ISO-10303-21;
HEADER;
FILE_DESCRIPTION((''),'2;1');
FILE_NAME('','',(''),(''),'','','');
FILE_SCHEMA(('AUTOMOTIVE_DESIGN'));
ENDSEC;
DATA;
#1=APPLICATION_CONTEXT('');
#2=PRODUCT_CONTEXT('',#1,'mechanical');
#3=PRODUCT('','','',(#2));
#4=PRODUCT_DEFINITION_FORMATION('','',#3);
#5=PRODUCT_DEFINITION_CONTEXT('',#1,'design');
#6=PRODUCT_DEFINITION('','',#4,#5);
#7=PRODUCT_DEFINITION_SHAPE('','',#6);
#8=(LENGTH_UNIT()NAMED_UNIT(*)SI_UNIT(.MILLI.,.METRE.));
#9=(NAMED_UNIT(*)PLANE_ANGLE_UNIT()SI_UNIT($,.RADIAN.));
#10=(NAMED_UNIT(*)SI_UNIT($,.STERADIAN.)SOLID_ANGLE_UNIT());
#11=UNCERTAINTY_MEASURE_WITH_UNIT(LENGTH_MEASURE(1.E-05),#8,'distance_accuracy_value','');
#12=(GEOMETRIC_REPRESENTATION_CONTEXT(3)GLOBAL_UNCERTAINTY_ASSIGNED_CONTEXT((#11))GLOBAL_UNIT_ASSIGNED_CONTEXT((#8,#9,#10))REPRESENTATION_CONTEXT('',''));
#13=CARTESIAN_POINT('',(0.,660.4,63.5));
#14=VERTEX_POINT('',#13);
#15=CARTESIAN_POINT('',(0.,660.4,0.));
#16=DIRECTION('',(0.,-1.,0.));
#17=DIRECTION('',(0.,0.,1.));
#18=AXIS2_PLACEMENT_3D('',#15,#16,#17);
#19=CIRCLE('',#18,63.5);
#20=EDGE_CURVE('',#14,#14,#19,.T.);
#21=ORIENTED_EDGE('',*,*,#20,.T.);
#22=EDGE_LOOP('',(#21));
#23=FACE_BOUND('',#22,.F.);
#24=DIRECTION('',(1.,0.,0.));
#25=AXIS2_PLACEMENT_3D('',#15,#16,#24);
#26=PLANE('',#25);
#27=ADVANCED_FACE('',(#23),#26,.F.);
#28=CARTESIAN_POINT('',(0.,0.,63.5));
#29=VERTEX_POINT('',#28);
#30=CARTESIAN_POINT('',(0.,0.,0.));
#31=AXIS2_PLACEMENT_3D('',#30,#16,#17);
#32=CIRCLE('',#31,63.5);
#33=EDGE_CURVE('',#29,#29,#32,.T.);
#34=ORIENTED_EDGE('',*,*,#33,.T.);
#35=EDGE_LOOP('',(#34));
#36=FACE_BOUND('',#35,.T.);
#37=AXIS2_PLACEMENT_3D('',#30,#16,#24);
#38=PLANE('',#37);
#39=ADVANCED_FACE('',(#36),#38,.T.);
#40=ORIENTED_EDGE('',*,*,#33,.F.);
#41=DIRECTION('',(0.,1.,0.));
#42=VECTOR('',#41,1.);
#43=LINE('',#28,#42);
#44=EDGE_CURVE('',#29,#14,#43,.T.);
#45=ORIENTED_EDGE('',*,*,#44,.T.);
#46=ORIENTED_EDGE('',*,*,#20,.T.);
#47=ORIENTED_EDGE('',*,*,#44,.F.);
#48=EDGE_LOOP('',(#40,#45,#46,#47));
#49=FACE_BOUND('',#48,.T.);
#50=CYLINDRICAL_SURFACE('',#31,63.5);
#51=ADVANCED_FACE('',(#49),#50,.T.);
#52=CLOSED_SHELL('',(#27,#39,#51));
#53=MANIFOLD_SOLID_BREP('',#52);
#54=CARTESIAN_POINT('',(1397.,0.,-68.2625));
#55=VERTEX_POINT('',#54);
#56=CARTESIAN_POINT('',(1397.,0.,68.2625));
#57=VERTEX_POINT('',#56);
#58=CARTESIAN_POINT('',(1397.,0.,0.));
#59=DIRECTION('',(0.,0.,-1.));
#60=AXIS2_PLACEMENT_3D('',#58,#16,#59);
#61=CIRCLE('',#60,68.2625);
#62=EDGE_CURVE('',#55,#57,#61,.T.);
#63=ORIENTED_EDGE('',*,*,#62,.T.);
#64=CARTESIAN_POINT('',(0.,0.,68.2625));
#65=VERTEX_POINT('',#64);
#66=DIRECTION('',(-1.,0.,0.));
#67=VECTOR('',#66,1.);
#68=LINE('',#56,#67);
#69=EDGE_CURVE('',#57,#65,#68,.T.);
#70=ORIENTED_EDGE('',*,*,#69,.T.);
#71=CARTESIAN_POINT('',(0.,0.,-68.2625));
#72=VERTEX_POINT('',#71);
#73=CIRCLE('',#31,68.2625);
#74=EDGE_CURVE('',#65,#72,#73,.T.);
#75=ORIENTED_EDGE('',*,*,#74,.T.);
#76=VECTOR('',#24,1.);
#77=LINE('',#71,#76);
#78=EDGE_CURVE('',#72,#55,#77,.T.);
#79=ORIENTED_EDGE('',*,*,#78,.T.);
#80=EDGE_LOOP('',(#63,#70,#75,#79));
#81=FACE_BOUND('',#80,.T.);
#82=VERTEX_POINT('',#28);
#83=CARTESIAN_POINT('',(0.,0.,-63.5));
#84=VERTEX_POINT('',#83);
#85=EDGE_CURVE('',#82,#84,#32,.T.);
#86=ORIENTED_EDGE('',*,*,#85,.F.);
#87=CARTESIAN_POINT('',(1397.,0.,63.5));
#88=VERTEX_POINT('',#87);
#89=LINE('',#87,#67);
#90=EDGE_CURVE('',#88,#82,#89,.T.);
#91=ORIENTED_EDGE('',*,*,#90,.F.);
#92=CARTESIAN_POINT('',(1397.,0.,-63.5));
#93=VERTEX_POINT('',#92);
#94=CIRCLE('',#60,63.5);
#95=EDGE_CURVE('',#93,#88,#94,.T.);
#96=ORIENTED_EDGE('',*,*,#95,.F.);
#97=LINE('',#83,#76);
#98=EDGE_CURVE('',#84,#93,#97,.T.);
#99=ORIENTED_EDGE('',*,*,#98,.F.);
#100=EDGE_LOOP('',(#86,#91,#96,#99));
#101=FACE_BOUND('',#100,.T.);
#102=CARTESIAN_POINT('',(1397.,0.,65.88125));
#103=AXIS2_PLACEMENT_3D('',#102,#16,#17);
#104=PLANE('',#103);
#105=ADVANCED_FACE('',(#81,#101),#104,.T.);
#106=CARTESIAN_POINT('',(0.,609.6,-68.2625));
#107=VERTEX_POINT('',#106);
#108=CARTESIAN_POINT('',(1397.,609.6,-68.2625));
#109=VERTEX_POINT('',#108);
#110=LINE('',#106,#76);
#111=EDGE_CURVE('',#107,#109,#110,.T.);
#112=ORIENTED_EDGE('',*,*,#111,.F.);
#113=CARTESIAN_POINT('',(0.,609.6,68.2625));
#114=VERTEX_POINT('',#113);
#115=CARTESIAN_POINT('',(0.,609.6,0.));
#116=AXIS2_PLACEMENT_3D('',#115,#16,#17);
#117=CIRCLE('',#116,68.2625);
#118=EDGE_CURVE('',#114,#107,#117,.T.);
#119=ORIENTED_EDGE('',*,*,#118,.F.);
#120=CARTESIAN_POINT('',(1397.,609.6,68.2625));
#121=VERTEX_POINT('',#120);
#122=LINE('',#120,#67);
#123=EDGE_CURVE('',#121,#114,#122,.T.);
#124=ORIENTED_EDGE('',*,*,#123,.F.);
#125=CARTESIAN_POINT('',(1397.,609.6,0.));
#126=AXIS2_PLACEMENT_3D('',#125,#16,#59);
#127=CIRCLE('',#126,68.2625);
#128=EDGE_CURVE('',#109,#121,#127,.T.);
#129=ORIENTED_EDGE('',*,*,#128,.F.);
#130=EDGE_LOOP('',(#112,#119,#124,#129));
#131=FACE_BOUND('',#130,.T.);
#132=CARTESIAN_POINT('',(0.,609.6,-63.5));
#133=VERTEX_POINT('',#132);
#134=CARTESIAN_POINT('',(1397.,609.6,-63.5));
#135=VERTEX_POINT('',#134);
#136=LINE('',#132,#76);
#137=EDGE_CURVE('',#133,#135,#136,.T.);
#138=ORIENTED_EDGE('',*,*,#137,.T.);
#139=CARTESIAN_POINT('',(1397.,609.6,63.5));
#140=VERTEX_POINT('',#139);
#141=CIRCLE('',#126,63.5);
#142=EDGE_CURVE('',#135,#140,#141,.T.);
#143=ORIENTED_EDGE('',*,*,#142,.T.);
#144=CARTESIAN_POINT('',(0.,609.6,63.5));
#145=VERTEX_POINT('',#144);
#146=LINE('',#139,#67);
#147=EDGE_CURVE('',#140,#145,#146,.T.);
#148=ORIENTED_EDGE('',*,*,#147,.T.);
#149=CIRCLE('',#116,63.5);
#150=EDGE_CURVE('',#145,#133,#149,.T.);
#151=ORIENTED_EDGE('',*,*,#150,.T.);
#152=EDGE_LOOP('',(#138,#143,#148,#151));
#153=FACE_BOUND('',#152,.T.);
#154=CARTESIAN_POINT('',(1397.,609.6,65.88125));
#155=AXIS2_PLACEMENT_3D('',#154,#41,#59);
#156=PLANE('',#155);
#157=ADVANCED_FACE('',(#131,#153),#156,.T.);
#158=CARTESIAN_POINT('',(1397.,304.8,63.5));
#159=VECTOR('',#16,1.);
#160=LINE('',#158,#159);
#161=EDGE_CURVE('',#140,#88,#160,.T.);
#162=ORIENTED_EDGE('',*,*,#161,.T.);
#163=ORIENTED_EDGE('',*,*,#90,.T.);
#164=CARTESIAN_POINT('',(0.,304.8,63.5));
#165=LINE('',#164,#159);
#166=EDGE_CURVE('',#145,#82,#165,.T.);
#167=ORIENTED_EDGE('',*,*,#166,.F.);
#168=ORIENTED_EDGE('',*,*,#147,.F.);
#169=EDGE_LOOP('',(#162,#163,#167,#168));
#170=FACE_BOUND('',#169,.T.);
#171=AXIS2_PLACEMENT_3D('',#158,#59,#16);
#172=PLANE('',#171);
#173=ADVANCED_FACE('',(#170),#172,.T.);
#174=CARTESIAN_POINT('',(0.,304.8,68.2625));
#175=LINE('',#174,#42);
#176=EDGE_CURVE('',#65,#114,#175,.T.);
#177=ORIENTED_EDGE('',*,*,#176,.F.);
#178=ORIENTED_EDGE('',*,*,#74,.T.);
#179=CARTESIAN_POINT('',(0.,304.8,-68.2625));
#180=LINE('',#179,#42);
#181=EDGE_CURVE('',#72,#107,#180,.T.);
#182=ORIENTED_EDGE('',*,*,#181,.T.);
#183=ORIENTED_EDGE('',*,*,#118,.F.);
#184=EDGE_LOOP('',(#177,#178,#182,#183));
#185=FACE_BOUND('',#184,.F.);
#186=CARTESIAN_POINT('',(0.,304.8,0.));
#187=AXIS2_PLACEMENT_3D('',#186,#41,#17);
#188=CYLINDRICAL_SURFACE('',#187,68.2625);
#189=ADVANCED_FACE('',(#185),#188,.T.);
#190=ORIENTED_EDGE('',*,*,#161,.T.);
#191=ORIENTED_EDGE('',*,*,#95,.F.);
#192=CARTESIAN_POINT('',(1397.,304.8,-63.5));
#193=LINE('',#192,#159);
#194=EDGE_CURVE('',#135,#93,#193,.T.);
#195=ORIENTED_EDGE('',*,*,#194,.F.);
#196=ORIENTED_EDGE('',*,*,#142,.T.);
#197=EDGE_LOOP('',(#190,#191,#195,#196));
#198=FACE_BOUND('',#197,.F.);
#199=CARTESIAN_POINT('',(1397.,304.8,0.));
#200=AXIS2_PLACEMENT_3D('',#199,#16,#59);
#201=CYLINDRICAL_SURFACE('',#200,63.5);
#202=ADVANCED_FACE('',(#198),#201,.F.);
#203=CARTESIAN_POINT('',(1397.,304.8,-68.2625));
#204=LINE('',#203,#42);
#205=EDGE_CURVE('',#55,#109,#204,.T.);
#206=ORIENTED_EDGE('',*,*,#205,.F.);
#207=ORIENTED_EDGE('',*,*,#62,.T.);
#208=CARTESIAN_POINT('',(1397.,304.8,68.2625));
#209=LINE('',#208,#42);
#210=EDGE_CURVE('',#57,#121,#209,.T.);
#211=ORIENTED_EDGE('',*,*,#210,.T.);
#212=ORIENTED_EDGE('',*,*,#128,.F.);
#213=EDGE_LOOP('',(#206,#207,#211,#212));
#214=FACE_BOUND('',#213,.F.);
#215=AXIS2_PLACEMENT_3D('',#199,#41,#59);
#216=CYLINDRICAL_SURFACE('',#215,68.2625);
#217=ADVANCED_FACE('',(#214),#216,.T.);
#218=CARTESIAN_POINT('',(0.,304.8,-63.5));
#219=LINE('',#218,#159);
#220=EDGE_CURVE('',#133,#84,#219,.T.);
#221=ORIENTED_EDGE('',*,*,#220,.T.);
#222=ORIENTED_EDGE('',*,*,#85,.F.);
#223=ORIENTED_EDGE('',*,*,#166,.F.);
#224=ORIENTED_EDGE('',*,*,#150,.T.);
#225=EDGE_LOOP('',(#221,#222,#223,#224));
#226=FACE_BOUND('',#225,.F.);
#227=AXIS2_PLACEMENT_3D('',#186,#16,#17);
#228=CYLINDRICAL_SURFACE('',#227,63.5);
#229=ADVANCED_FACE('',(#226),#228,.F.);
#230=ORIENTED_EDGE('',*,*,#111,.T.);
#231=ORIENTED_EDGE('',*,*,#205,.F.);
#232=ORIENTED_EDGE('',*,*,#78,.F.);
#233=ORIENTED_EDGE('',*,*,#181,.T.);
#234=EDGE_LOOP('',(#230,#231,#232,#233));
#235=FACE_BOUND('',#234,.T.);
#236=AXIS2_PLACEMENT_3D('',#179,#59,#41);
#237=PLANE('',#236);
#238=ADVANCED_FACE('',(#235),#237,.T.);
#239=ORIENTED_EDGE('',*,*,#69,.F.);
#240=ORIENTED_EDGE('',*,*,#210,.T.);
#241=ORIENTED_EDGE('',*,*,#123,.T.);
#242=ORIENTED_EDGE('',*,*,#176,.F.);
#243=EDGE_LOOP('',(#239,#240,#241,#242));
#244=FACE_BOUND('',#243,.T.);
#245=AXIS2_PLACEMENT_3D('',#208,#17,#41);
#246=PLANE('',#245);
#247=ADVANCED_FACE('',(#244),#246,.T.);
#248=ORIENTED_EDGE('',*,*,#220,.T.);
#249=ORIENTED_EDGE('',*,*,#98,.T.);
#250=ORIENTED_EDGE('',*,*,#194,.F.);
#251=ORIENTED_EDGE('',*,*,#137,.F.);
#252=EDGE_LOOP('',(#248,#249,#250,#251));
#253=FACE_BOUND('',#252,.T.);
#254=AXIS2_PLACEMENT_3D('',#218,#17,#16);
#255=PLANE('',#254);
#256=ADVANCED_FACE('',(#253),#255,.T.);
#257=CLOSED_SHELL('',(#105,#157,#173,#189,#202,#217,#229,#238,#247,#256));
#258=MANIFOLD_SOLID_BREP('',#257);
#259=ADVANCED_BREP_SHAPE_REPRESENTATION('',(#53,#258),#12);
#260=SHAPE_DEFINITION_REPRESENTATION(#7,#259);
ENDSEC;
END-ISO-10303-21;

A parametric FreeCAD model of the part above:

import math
import FreeCAD as App
import Part
import Sketcher

V = App.Vector
Q = App.Units.Quantity

doc = App.newDocument("Part")
body = doc.addObject("PartDesign::Body", "Body")

# Sketch on YZ plane
sketch1 = body.newObject("Sketcher::SketchObject", "Sketch")
sketch1.AttachmentSupport = (doc.getObject("YZ_Plane"), [""])
sketch1.MapMode = "FlatFace"
sketch1.AttachmentOffset = App.Placement(V(0, 0, 55 * 25.4), App.Rotation())
sketch1.addGeometry([
    Part.LineSegment(V(609.6, 68.2625, 0), V(609.6, 63.5, 0)),
    Part.LineSegment(V(609.6, 63.5, 0), V(0, 63.5, 0)),
    Part.LineSegment(V(0, 63.5, 0), V(0, 68.2625, 0)),
    Part.LineSegment(V(0, 68.2625, 0), V(609.6, 68.2625, 0)),
], False)
sketch1.addConstraint([
    Sketcher.Constraint("Coincident", 0, 2, 1, 1),
    Sketcher.Constraint("Coincident", 1, 2, 2, 1),
    Sketcher.Constraint("Coincident", 2, 2, 3, 1),
    Sketcher.Constraint("Coincident", 3, 2, 0, 1),
    Sketcher.Constraint("Vertical", 0),
    Sketcher.Constraint("Horizontal", 1),
    Sketcher.Constraint("Vertical", 2),
    Sketcher.Constraint("Horizontal", 3),
    Sketcher.Constraint("PointOnObject", 1, 2, -2),
    Sketcher.Constraint("DistanceX", 1, 2, 1, 1, Q("24 in")),
    Sketcher.Constraint("DistanceY", -1, 1, 0, 2, Q("2.5 in")),
    Sketcher.Constraint("DistanceY", 0, 2, 0, 1, Q("0.1875 in")),
])

# Sketch on XZ plane
sketch2 = body.newObject("Sketcher::SketchObject", "Sketch001")
sketch2.AttachmentSupport = (doc.getObject("XZ_Plane"), [""])
sketch2.MapMode = "FlatFace"
sketch2.addGeometry([
    Part.LineSegment(V(1397, 63.5, 0), V(0, 63.5, 0)),
    Part.ArcOfCircle(Part.Circle(V(0, 0, 0), V(0, 0, 1), 63.5), math.radians(90), math.radians(270)),
    Part.LineSegment(V(0, -63.5, 0), V(1397, -63.5, 0)),
    Part.ArcOfCircle(Part.Circle(V(1397, 0, 0), V(0, 0, 1), 63.5), math.radians(-90), math.radians(90)),
], False)
sketch2.addConstraint([
    Sketcher.Constraint("Tangent", 0, 2, 1, 1),
    Sketcher.Constraint("Tangent", 1, 2, 2, 1),
    Sketcher.Constraint("Tangent", 2, 2, 3, 1),
    Sketcher.Constraint("Tangent", 3, 2, 0, 1),
    Sketcher.Constraint("Horizontal", 0),
    Sketcher.Constraint("Horizontal", 2),
    Sketcher.Constraint("Coincident", 1, 3, -1, 1),
    Sketcher.Constraint("Radius", 1, Q("2.5 in")),
    Sketcher.Constraint("DistanceX", 0, 2, 0, 1, Q("55 in")),
])
doc.recompute()

additivepipe = body.newObject("PartDesign::AdditivePipe", "AdditivePipe")
additivepipe.Profile = sketch1
additivepipe.Spine = (sketch2, ["Edge1", "Edge2", "Edge3", "Edge4"])
body2 = doc.addObject("PartDesign::Body", "Body001")

# Sketch on XZ plane
sketch3 = body2.newObject("Sketcher::SketchObject", "Sketch002")
sketch3.AttachmentSupport = (doc.getObject("XZ_Plane001"), [""])
sketch3.MapMode = "FlatFace"
sketch3.addGeometry(Part.Circle(V(0, 0, 0), V(0, 0, 1), 63.5), False)
sketch3.addConstraint([
    Sketcher.Constraint("Coincident", 0, 3, -1, 1),
    Sketcher.Constraint("Diameter", 0, Q("5 in")),
])
pad1 = body2.newObject("PartDesign::Pad", "Pad")
pad1.Profile = sketch3
pad1.Length = Q("26 in")
pad1.Reversed = True

doc.recompute()
